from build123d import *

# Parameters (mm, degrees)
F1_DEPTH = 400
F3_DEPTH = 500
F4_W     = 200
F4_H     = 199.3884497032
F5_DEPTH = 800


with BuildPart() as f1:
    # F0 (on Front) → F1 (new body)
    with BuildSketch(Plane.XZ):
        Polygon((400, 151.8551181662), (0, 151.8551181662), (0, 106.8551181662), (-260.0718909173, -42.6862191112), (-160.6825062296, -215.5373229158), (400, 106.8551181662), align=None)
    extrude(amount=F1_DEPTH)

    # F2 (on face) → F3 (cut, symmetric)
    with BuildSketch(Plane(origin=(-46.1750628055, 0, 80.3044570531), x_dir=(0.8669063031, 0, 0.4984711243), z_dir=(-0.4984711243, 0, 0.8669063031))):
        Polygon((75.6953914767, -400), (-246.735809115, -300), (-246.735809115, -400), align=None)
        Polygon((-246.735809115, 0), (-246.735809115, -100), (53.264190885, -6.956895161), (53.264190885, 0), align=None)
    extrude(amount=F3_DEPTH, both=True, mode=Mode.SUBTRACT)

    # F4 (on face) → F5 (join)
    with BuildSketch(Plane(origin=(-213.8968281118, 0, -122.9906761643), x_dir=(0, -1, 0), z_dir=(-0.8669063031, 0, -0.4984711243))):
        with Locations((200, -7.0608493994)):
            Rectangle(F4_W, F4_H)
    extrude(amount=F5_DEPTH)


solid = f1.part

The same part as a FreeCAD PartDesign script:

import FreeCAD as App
import Part
import Sketcher
Q = App.Units.Quantity

doc = App.newDocument("Part")
body = doc.addObject("PartDesign::Body", "Body")

# Sketch on XZ plane
sketch1 = body.newObject("Sketcher::SketchObject", "Sketch")
sketch1.AttachmentSupport = (doc.getObject("XZ_Plane"), [""])
sketch1.MapMode = "FlatFace"
sketch1.addGeometry(Part.LineSegment(App.Vector(400, 151.855118, 0), App.Vector(0, 151.855118, 0)), False)
sketch1.addGeometry(Part.LineSegment(App.Vector(0, 151.855118, 0), App.Vector(0, 106.855118, 0)), False)
sketch1.addGeometry(Part.LineSegment(App.Vector(0, 106.855118, 0), App.Vector(-260.071891, -42.686219, 0)), False)
sketch1.addGeometry(Part.LineSegment(App.Vector(-260.071891, -42.686219, 0), App.Vector(-160.682506, -215.537323, 0)), False)
sketch1.addGeometry(Part.LineSegment(App.Vector(-160.682506, -215.537323, 0), App.Vector(400, 106.855118, 0)), False)
sketch1.addGeometry(Part.LineSegment(App.Vector(400, 106.855118, 0), App.Vector(400, 151.855118, 0)), False)
sketch1.addConstraint(Sketcher.Constraint("Coincident", 0, 2, 1, 1))
sketch1.addConstraint(Sketcher.Constraint("Coincident", 1, 2, 2, 1))
sketch1.addConstraint(Sketcher.Constraint("Coincident", 2, 2, 3, 1))
sketch1.addConstraint(Sketcher.Constraint("Coincident", 3, 2, 4, 1))
sketch1.addConstraint(Sketcher.Constraint("Coincident", 4, 2, 5, 1))
sketch1.addConstraint(Sketcher.Constraint("Coincident", 5, 2, 0, 1))
sketch1.addConstraint(Sketcher.Constraint("Horizontal", 0))
sketch1.addConstraint(Sketcher.Constraint("Vertical", 1))
sketch1.addConstraint(Sketcher.Constraint("Vertical", 5))
sketch1.addConstraint(Sketcher.Constraint("PointOnObject", 0, 2, -2))
sketch1.addConstraint(Sketcher.Constraint("Perpendicular", 2, 3))
sketch1.addConstraint(Sketcher.Constraint("Perpendicular", 3, 4))
sketch1.addConstraint(Sketcher.Constraint("Horizontal", 1, 2, 4, 2))
sketch1.addConstraint(Sketcher.Constraint("DistanceX", 0, 2, 0, 1, Q("400 mm")))
sketch1.addConstraint(Sketcher.Constraint("DistanceY", 1, 2, 1, 1, Q("45 mm")))
sketch1.addConstraint(Sketcher.Constraint("Distance", 2, Q("300 mm")))
sketch1.addConstraint(Sketcher.Constraint("Distance", 3, Q("199.38845 mm")))
sketch1.addConstraint(Sketcher.Constraint("DistanceY", -1, 1, 0, 2, Q("151.855118 mm")))
pad1 = body.newObject("PartDesign::Pad", "Pad")
pad1.Profile = sketch1
pad1.Length = 400

# Sketch on an angled plane
sketch2 = body.newObject("Sketcher::SketchObject", "Sketch001")
sketch2.Placement = App.Placement(App.Vector(-46.175063, 0, 80.304457), App.Rotation(App.Vector(0.866906303, 0, 0.498471124), App.Vector(0, 1, 0), App.Vector(-0.498471124, 0, 0.866906303), "ZXY"))
sketch2.addGeometry(Part.LineSegment(App.Vector(75.695391, -400, 0), App.Vector(-246.735809, -300, 0)), False)
sketch2.addGeometry(Part.LineSegment(App.Vector(-246.735809, -300, 0), App.Vector(-246.735809, -400, 0)), False)
sketch2.addGeometry(Part.LineSegment(App.Vector(-246.735809, -400, 0), App.Vector(75.695391, -400, 0)), False)
sketch2.addGeometry(Part.LineSegment(App.Vector(-246.735809, 0, 0), App.Vector(-246.735809, -100, 0)), False)
sketch2.addGeometry(Part.LineSegment(App.Vector(-246.735809, -100, 0), App.Vector(53.264191, -6.956895, 0)), False)
sketch2.addGeometry(Part.LineSegment(App.Vector(53.264191, -6.956895, 0), App.Vector(53.264191, 0, 0)), False)
sketch2.addGeometry(Part.LineSegment(App.Vector(53.264191, 0, 0), App.Vector(-246.735809, 0, 0)), False)
sketch2.addConstraint(Sketcher.Constraint("Coincident", 0, 2, 1, 1))
sketch2.addConstraint(Sketcher.Constraint("Coincident", 1, 2, 2, 1))
sketch2.addConstraint(Sketcher.Constraint("Coincident", 2, 2, 0, 1))
sketch2.addConstraint(Sketcher.Constraint("Coincident", 3, 2, 4, 1))
sketch2.addConstraint(Sketcher.Constraint("Coincident", 4, 2, 5, 1))
sketch2.addConstraint(Sketcher.Constraint("Coincident", 5, 2, 6, 1))
sketch2.addConstraint(Sketcher.Constraint("Coincident", 6, 2, 3, 1))
sketch2.addConstraint(Sketcher.Constraint("Vertical", 1))
sketch2.addConstraint(Sketcher.Constraint("Horizontal", 2))
sketch2.addConstraint(Sketcher.Constraint("Vertical", 3))
sketch2.addConstraint(Sketcher.Constraint("Vertical", 5))
sketch2.addConstraint(Sketcher.Constraint("Horizontal", 6))
sketch2.addConstraint(Sketcher.Constraint("PointOnObject", 5, 2, -1))
sketch2.addConstraint(Sketcher.Constraint("Vertical", 1, 2, 3, 2))
sketch2.addConstraint(Sketcher.Constraint("Equal", 1, 3))
sketch2.addConstraint(Sketcher.Constraint("DistanceX", 6, 2, 6, 1, Q("300 mm")))
sketch2.addConstraint(Sketcher.Constraint("DistanceY", 1, 2, 1, 1, Q("100 mm")))
sketch2.addConstraint(Sketcher.Constraint("DistanceY", 0, 2, -1, 1, Q("300 mm")))
sketch2.addConstraint(Sketcher.Constraint("DistanceX", 2, 1, 2, 2, Q("322.4312 mm")))
sketch2.addConstraint(Sketcher.Constraint("Distance", 4, Q("314.097149 mm")))
sketch2.addConstraint(Sketcher.Constraint("DistanceX", 0, 2, -1, 1, Q("246.735809 mm")))
pocket1 = body.newObject("PartDesign::Pocket", "Pocket")
pocket1.Profile = sketch2
pocket1.Length = 1000
pocket1.Midplane = True

# Sketch on an angled plane
sketch3 = body.newObject("Sketcher::SketchObject", "Sketch002")
sketch3.Placement = App.Placement(App.Vector(-213.896828, 0, -122.990676), App.Rotation(App.Vector(0, -1, 0), App.Vector(-0.498471124, 0, 0.866906303), App.Vector(-0.866906303, 0, -0.498471124), "ZXY"))
sketch3.addGeometry(Part.LineSegment(App.Vector(100, 92.633375, 0), App.Vector(100, -106.755074, 0)), False)
sketch3.addGeometry(Part.LineSegment(App.Vector(100, -106.755074, 0), App.Vector(300, -106.755074, 0)), False)
sketch3.addGeometry(Part.LineSegment(App.Vector(300, -106.755074, 0), App.Vector(300, 92.633375, 0)), False)
sketch3.addGeometry(Part.LineSegment(App.Vector(300, 92.633375, 0), App.Vector(100, 92.633375, 0)), False)
sketch3.addConstraint(Sketcher.Constraint("Coincident", 0, 2, 1, 1))
sketch3.addConstraint(Sketcher.Constraint("Coincident", 1, 2, 2, 1))
sketch3.addConstraint(Sketcher.Constraint("Coincident", 2, 2, 3, 1))
sketch3.addConstraint(Sketcher.Constraint("Coincident", 3, 2, 0, 1))
sketch3.addConstraint(Sketcher.Constraint("Vertical", 0))
sketch3.addConstraint(Sketcher.Constraint("Horizontal", 1))
sketch3.addConstraint(Sketcher.Constraint("Vertical", 2))
sketch3.addConstraint(Sketcher.Constraint("Horizontal", 3))
sketch3.addConstraint(Sketcher.Constraint("DistanceX", 1, 1, 1, 2, Q("200 mm")))
sketch3.addConstraint(Sketcher.Constraint("DistanceX", -1, 1, 0, 2, Q("100 mm")))
sketch3.addConstraint(Sketcher.Constraint("DistanceY", 0, 2, 0, 1, Q("199.38845 mm")))
sketch3.addConstraint(Sketcher.Constraint("DistanceY", 0, 2, -1, 1, Q("106.755074 mm")))
pad2 = body.newObject("PartDesign::Pad", "Pad001")
pad2.Profile = sketch3
pad2.Length = 800

doc.recompute()
